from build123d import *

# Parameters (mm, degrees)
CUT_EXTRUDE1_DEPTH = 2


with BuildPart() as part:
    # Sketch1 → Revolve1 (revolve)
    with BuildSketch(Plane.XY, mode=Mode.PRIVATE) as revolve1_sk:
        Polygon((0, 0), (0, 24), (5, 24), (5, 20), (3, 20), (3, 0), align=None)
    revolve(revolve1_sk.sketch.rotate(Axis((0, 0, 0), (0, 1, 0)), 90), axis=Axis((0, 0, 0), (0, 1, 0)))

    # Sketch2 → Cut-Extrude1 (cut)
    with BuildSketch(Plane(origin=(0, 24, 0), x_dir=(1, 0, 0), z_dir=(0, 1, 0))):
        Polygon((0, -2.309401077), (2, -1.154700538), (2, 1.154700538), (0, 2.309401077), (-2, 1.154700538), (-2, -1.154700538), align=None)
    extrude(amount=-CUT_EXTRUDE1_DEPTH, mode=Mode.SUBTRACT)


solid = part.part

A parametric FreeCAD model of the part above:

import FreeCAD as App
import Part
import Sketcher
from FreeCAD import Vector
Q = App.Units.Quantity


def add_polygon(sketch, points):
    """Adds a closed chain of lines whose ends are joined by coincident constraints."""
    first, n = sketch.GeometryCount, len(points)
    for a, b in zip(points, points[1:] + points[:1]):
        sketch.addGeometry(Part.LineSegment(App.Vector(*a, 0), App.Vector(*b, 0)), False)
    for i in range(n):
        sketch.addConstraint(Sketcher.Constraint("Coincident", first + i, 2, first + (i + 1) % n, 1))

doc = App.newDocument("Part")
body = doc.addObject("PartDesign::Body", "Body")

sketch1 = doc.addObject("Sketcher::SketchObject", "Sketch")
body.addObject(sketch1)
sketch1.AttachmentSupport = (doc.XY_Plane, [""])
sketch1.MapMode = "FlatFace"
add_polygon(sketch1, [(0, 24), (0, 0), (3, 0), (3, 20), (5, 20), (5, 24)])
sketch1.addConstraint([
    Sketcher.Constraint("Vertical", 0),
    Sketcher.Constraint("Horizontal", 1),
    Sketcher.Constraint("Vertical", 2),
    Sketcher.Constraint("Horizontal", 3),
    Sketcher.Constraint("Vertical", 4),
    Sketcher.Constraint("Horizontal", 5),
    Sketcher.Constraint("Coincident", 0, 2, -1, 1),
    Sketcher.Constraint("DistanceX", 1, 1, 1, 2, 3.0),
    Sketcher.Constraint("DistanceX", 3, 1, 3, 2, 2.0),
    Sketcher.Constraint("DistanceY", 0, 2, 0, 1, 24.0),
    Sketcher.Constraint("DistanceY", 2, 1, 2, 2, 20.0),
])
revolution = doc.addObject("PartDesign::Revolution", "Revolution")
body.addObject(revolution)
revolution.Profile = sketch1
revolution.ReferenceAxis = (sketch1, ["V_Axis"])
revolution.Angle = 360

sketch2 = doc.addObject("Sketcher::SketchObject", "Sketch001")
body.addObject(sketch2)
sketch2.AttachmentSupport = (doc.XZ_Plane, [""])
sketch2.MapMode = "FlatFace"
sketch2.AttachmentOffset = App.Placement(Vector(0, 0, -24), App.Rotation())
add_polygon(sketch2, [(0, 2.3), (2, 1.2), (2, -1.2), (0, -2.3), (-2, -1.2), (-2, 1.2)])
sketch2.addConstraint([
    Sketcher.Constraint("Vertical", 1),
    Sketcher.Constraint("Vertical", 4),
    Sketcher.Constraint("Symmetric", 0, 2, 3, 2, -1, 1),
    Sketcher.Constraint("Symmetric", 2, 2, 5, 2, -1, 1),
    Sketcher.Constraint("PointOnObject", 2, 2, -2),
    Sketcher.Constraint("Parallel", 2, 5),
    Sketcher.Constraint("Horizontal", 1, 2, 3, 2),
    Sketcher.Constraint("Angle", 0, Q("-30 deg")),
    Sketcher.Constraint("DistanceX", -1, 1, 0, 2, 2.0),
    Sketcher.Constraint("DistanceY", 1, 2, 1, 1, 2.309401),
])
pocket1 = doc.addObject("PartDesign::Pocket", "Pocket")
body.addObject(pocket1)
pocket1.Profile = sketch2
pocket1.Length = 2
pocket1.Reversed = True

doc.recompute()
